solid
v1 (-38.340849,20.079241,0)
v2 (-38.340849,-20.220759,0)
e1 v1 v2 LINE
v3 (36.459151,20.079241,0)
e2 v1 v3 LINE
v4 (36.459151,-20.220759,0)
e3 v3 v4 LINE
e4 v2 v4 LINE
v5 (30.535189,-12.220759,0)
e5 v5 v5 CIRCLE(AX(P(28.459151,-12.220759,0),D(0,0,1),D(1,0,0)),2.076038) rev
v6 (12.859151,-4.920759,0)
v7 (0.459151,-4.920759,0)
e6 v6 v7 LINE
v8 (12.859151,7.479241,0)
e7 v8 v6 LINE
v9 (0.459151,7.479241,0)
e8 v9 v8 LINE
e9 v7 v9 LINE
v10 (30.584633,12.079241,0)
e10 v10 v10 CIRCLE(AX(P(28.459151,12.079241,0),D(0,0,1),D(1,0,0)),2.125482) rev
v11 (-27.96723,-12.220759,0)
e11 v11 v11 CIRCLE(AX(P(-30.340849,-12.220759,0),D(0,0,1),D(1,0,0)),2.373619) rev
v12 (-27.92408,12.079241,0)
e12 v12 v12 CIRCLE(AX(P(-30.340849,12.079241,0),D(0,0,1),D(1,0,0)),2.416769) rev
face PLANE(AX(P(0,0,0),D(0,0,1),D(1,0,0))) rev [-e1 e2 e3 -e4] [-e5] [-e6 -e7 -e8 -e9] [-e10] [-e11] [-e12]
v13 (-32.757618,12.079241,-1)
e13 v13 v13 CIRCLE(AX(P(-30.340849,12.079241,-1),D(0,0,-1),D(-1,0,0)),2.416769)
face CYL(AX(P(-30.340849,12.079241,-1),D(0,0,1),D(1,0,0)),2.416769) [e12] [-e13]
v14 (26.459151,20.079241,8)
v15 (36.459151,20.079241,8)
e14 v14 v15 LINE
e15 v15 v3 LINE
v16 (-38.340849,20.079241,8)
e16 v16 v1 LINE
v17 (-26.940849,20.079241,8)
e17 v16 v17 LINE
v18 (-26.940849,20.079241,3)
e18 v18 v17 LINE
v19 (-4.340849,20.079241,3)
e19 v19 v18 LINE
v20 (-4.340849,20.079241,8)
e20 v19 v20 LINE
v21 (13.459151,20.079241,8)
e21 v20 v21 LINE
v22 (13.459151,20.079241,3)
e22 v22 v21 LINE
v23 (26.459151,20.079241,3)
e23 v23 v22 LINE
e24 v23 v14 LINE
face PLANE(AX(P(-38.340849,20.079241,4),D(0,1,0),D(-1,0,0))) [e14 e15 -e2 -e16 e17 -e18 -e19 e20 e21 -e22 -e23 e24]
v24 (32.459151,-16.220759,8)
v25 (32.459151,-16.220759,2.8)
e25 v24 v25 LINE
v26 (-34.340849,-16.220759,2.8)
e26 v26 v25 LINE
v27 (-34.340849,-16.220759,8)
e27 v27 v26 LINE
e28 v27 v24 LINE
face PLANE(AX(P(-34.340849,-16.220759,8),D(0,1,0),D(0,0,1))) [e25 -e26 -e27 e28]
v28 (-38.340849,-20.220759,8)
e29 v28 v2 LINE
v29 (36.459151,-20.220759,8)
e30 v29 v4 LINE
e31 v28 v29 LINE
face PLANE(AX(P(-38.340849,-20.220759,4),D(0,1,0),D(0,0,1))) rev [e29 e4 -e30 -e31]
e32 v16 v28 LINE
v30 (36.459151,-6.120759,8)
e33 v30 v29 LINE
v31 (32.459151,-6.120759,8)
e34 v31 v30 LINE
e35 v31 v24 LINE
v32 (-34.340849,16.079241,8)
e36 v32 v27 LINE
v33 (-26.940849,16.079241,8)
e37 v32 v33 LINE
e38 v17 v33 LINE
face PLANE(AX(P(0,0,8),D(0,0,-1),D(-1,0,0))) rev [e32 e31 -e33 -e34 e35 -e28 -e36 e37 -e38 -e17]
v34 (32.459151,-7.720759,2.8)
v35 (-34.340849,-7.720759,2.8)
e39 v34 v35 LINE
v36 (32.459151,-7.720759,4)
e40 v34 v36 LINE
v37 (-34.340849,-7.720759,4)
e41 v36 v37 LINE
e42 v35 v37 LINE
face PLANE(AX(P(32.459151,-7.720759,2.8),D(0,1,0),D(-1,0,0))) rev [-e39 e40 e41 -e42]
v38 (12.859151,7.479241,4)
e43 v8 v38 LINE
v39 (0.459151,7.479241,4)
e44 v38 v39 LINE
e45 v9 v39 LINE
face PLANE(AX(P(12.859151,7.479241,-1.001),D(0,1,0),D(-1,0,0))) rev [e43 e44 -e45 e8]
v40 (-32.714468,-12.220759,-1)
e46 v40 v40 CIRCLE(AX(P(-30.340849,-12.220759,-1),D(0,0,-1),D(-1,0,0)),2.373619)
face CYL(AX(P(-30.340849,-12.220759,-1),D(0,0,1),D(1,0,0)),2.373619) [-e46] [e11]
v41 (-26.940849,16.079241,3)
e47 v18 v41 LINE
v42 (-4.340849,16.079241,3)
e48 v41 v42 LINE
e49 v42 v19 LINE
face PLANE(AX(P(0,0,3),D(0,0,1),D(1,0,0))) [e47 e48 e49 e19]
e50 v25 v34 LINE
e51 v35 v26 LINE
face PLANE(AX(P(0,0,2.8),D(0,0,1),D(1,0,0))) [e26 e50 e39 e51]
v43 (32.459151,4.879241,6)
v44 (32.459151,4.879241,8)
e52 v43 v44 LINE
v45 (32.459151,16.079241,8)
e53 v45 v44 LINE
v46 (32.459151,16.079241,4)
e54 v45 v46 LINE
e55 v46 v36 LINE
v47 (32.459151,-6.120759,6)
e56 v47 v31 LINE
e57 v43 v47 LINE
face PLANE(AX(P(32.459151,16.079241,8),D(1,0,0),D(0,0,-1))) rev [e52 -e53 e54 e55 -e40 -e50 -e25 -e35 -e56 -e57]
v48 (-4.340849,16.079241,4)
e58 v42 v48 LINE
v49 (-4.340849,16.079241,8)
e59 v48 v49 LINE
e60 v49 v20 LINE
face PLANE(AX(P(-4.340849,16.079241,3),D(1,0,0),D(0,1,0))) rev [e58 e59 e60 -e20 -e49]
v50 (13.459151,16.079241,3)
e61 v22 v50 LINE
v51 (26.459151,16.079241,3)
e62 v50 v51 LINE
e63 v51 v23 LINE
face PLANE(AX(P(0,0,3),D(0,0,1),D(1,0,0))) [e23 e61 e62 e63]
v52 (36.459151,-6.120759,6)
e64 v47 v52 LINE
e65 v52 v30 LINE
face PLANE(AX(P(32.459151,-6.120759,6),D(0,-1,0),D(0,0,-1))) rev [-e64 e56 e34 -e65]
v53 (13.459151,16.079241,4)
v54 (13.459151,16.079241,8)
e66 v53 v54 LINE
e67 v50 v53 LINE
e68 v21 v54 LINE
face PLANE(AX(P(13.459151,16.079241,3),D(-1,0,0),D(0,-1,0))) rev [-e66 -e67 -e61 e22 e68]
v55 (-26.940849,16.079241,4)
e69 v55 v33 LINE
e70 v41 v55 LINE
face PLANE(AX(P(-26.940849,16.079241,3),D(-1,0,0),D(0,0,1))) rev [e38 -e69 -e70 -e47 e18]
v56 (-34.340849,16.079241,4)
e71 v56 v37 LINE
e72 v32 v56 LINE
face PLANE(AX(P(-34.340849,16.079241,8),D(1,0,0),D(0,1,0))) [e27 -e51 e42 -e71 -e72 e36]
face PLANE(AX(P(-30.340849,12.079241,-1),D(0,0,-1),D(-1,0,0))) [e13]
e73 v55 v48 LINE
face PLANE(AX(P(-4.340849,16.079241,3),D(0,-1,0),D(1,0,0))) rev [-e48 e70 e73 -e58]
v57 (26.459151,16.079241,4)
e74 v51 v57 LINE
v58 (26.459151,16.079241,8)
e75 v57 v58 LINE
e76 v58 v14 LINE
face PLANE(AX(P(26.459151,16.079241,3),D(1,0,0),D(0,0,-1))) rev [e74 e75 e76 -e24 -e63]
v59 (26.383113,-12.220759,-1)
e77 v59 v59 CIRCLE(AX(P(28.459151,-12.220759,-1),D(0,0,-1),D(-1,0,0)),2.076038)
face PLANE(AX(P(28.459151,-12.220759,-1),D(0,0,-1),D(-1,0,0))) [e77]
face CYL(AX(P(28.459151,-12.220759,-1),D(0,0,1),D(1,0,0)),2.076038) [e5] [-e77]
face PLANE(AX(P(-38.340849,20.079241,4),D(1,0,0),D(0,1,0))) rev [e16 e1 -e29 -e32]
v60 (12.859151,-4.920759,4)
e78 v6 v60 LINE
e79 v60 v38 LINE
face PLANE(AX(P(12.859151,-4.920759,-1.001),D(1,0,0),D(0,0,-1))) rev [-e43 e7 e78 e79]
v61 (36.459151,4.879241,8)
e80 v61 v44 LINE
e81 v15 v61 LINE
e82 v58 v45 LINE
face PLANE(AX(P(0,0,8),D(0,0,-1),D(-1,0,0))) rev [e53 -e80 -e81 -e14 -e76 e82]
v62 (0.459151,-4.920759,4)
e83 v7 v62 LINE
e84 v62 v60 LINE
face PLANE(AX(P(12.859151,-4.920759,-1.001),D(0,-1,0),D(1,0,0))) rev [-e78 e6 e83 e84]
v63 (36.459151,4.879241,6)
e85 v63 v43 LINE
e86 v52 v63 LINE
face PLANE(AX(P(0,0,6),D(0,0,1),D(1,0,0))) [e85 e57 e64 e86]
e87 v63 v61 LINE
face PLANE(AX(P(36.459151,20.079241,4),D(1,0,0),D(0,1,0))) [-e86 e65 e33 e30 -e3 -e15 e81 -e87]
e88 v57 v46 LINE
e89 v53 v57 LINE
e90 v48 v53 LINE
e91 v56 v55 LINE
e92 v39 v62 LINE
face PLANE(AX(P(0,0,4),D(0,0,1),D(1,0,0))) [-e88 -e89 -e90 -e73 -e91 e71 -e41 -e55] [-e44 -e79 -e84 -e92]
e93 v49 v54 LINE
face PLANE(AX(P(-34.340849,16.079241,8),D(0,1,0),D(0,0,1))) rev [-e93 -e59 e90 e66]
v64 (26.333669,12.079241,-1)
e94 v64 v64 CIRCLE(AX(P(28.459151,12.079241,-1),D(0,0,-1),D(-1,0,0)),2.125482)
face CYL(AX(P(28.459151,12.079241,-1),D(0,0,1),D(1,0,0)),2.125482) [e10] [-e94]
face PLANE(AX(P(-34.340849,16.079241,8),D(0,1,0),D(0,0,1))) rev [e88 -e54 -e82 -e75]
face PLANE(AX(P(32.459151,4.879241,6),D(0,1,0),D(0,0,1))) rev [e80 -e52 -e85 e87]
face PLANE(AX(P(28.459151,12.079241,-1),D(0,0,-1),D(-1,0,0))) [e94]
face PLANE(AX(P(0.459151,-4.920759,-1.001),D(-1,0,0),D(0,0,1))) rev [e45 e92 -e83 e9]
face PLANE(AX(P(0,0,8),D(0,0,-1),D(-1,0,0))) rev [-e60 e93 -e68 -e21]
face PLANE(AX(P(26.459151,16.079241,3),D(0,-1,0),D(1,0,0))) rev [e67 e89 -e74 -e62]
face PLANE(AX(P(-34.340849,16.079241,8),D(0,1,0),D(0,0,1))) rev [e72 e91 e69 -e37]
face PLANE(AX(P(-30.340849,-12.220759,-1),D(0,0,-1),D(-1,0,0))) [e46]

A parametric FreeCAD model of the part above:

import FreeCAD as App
import Part
import Sketcher


def add_polygon(sketch, points):
    """Adds a closed chain of lines whose ends are joined by coincident constraints."""
    first, n = sketch.GeometryCount, len(points)
    for a, b in zip(points, points[1:] + points[:1]):
        sketch.addGeometry(Part.LineSegment(App.Vector(*a, 0), App.Vector(*b, 0)), False)
    for i in range(n):
        sketch.addConstraint(Sketcher.Constraint("Coincident", first + i, 2, first + (i + 1) % n, 1))

doc = App.newDocument("Part")
body = doc.addObject("PartDesign::Body", "Body")

# Sketch on XY plane
sketch1 = body.newObject("Sketcher::SketchObject", "Sketch")
sketch1.AttachmentSupport = (doc.getObject("XY_Plane"), [""])
sketch1.MapMode = "FlatFace"
add_polygon(sketch1, [(-38.340849, 20.079241), (-38.340849, -20.220759), (36.459151, -20.220759), (36.459151, 20.079241)])  # lines 0-3
sketch1.addConstraint(Sketcher.Constraint("Vertical", 0))
sketch1.addConstraint(Sketcher.Constraint("Horizontal", 1))
sketch1.addConstraint(Sketcher.Constraint("Vertical", 2))
sketch1.addConstraint(Sketcher.Constraint("Horizontal", 3))
sketch1.addConstraint(Sketcher.Constraint("DistanceX", 1, 1, 1, 2, 74.8))
sketch1.addConstraint(Sketcher.Constraint("DistanceY", 0, 2, 0, 1, 40.3))
sketch1.addConstraint(Sketcher.Constraint("DistanceX", 0, 2, -1, 1, 38.340849))
sketch1.addConstraint(Sketcher.Constraint("DistanceY", 0, 2, -1, 1, 20.220759))
pad1 = body.newObject("PartDesign::Pad", "Pad")
pad1.Profile = sketch1
pad1.Length = 4

# Sketch on XY plane
sketch2 = body.newObject("Sketcher::SketchObject", "Sketch001")
sketch2.AttachmentSupport = (doc.getObject("XY_Plane"), [""])
sketch2.MapMode = "FlatFace"
sketch2.AttachmentOffset = App.Placement(App.Vector(0, 0, 4), App.Rotation())
add_polygon(sketch2, [(-38.340849, 20.079241), (-38.340849, -20.220759), (36.459151, -20.220759), (36.459151, 20.079241)])  # lines 0-3
add_polygon(sketch2, [(32.459151, -16.220759), (-34.340849, -16.220759), (-34.340849, 16.079241), (32.459151, 16.079241)])  # lines 4-7
sketch2.addConstraint(Sketcher.Constraint("Vertical", 0))
sketch2.addConstraint(Sketcher.Constraint("Horizontal", 1))
sketch2.addConstraint(Sketcher.Constraint("Vertical", 2))
sketch2.addConstraint(Sketcher.Constraint("Horizontal", 3))
sketch2.addConstraint(Sketcher.Constraint("Horizontal", 4))
sketch2.addConstraint(Sketcher.Constraint("Vertical", 5))
sketch2.addConstraint(Sketcher.Constraint("Horizontal", 6))
sketch2.addConstraint(Sketcher.Constraint("Vertical", 7))
sketch2.addConstraint(Sketcher.Constraint("DistanceX", 1, 1, 1, 2, 74.8))
sketch2.addConstraint(Sketcher.Constraint("DistanceX", 4, 2, 4, 1, 66.8))
sketch2.addConstraint(Sketcher.Constraint("DistanceY", 0, 2, 0, 1, 40.3))
sketch2.addConstraint(Sketcher.Constraint("DistanceY", 5, 1, 5, 2, 32.3))
sketch2.addConstraint(Sketcher.Constraint("DistanceX", 0, 2, 4, 2, 4.0))
sketch2.addConstraint(Sketcher.Constraint("DistanceY", 0, 2, 4, 2, 4.0))
sketch2.addConstraint(Sketcher.Constraint("DistanceX", 0, 2, -1, 1, 38.340849))
sketch2.addConstraint(Sketcher.Constraint("DistanceY", 0, 2, -1, 1, 20.220759))
pad2 = body.newObject("PartDesign::Pad", "Pad001")
pad2.Profile = sketch2
pad2.Length = 4

# Sketch on XY plane
sketch3 = body.newObject("Sketcher::SketchObject", "Sketch002")
sketch3.AttachmentSupport = (doc.getObject("XY_Plane"), [""])
sketch3.MapMode = "FlatFace"
sketch3.addGeometry(Part.Circle(App.Vector(28.459151, 12.079241, 0), App.Vector(0, 0, 1), 2.125482), False)
sketch3.addGeometry(Part.Circle(App.Vector(-30.340849, 12.079241, 0), App.Vector(0, 0, 1), 2.416769), False)
sketch3.addGeometry(Part.Circle(App.Vector(28.459151, -12.220759, 0), App.Vector(0, 0, 1), 2.076038), False)
sketch3.addGeometry(Part.Circle(App.Vector(-30.340849, -12.220759, 0), App.Vector(0, 0, 1), 2.373619), False)
sketch3.addConstraint(Sketcher.Constraint("Horizontal", 0, 3, 1, 3))
sketch3.addConstraint(Sketcher.Constraint("Horizontal", 2, 3, 3, 3))
sketch3.addConstraint(Sketcher.Constraint("Vertical", 0, 3, 2, 3))
sketch3.addConstraint(Sketcher.Constraint("Vertical", 1, 3, 3, 3))
sketch3.addConstraint(Sketcher.Constraint("DistanceX", 1, 3, 0, 3, 58.8))
sketch3.addConstraint(Sketcher.Constraint("DistanceY", 2, 3, 0, 3, 24.3))
sketch3.addConstraint(Sketcher.Constraint("Diameter", 1, 4.833539))
sketch3.addConstraint(Sketcher.Constraint("Diameter", 3, 4.747238))
sketch3.addConstraint(Sketcher.Constraint("Diameter", 0, 4.250964))
sketch3.addConstraint(Sketcher.Constraint("Diameter", 2, 4.152076))
sketch3.addConstraint(Sketcher.Constraint("DistanceX", -1, 1, 0, 3, 28.459151))
sketch3.addConstraint(Sketcher.Constraint("DistanceY", -1, 1, 0, 3, 12.079241))
pad3 = body.newObject("PartDesign::Pad", "Pad002")
pad3.Profile = sketch3
pad3.Length = 1
pad3.Reversed = True

# Sketch on XY plane
sketch4 = body.newObject("Sketcher::SketchObject", "Sketch003")
sketch4.AttachmentSupport = (doc.getObject("XY_Plane"), [""])
sketch4.MapMode = "FlatFace"
sketch4.AttachmentOffset = App.Placement(App.Vector(0, 0, 8), App.Rotation())
add_polygon(sketch4, [(32.459151, 4.879241), (32.459151, -6.120759), (36.459151, -6.120759), (36.459151, 4.879241)])  # lines 0-3
sketch4.addConstraint(Sketcher.Constraint("Vertical", 0))
sketch4.addConstraint(Sketcher.Constraint("Horizontal", 1))
sketch4.addConstraint(Sketcher.Constraint("Vertical", 2))
sketch4.addConstraint(Sketcher.Constraint("Horizontal", 3))
sketch4.addConstraint(Sketcher.Constraint("DistanceX", 1, 1, 1, 2, 4.0))
sketch4.addConstraint(Sketcher.Constraint("DistanceY", 0, 2, 0, 1, 11.0))
sketch4.addConstraint(Sketcher.Constraint("DistanceX", -1, 1, 0, 2, 32.459151))
sketch4.addConstraint(Sketcher.Constraint("DistanceY", 0, 2, -1, 1, 6.120759))
pocket1 = body.newObject("PartDesign::Pocket", "Pocket")
pocket1.Profile = sketch4
pocket1.Length = 2

# Sketch on XY plane
sketch5 = body.newObject("Sketcher::SketchObject", "Sketch004")
sketch5.AttachmentSupport = (doc.getObject("XY_Plane"), [""])
sketch5.MapMode = "FlatFace"
sketch5.AttachmentOffset = App.Placement(App.Vector(0, 0, 4), App.Rotation())
add_polygon(sketch5, [(-34.340849, -7.720759), (-34.340849, -16.220759), (32.459151, -16.220759), (32.459151, -7.720759)])  # lines 0-3
sketch5.addConstraint(Sketcher.Constraint("Vertical", 0))
sketch5.addConstraint(Sketcher.Constraint("Horizontal", 1))
sketch5.addConstraint(Sketcher.Constraint("Vertical", 2))
sketch5.addConstraint(Sketcher.Constraint("Horizontal", 3))
sketch5.addConstraint(Sketcher.Constraint("DistanceX", 1, 1, 1, 2, 66.8))
sketch5.addConstraint(Sketcher.Constraint("DistanceY", 0, 2, 0, 1, 8.5))
sketch5.addConstraint(Sketcher.Constraint("DistanceX", 0, 2, -1, 1, 34.340849))
sketch5.addConstraint(Sketcher.Constraint("DistanceY", 0, 2, -1, 1, 16.220759))
pocket2 = body.newObject("PartDesign::Pocket", "Pocket001")
pocket2.Profile = sketch5
pocket2.Length = 1.2

# Sketch on XY plane
sketch6 = body.newObject("Sketcher::SketchObject", "Sketch005")
sketch6.AttachmentSupport = (doc.getObject("XY_Plane"), [""])
sketch6.MapMode = "FlatFace"
sketch6.AttachmentOffset = App.Placement(App.Vector(0, 0, 8), App.Rotation())
add_polygon(sketch6, [(13.459151, 20.079241), (13.459151, 16.079241), (26.459151, 16.079241), (26.459151, 20.079241)])  # lines 0-3
add_polygon(sketch6, [(-26.940849, 20.079241), (-26.940849, 16.079241), (-4.340849, 16.079241), (-4.340849, 20.079241)])  # lines 4-7
sketch6.addConstraint(Sketcher.Constraint("Vertical", 0))
sketch6.addConstraint(Sketcher.Constraint("Horizontal", 1))
sketch6.addConstraint(Sketcher.Constraint("Vertical", 2))
sketch6.addConstraint(Sketcher.Constraint("Horizontal", 3))
sketch6.addConstraint(Sketcher.Constraint("Vertical", 4))
sketch6.addConstraint(Sketcher.Constraint("Horizontal", 5))
sketch6.addConstraint(Sketcher.Constraint("Vertical", 6))
sketch6.addConstraint(Sketcher.Constraint("Horizontal", 7))
sketch6.addConstraint(Sketcher.Constraint("Horizontal", 1, 2, 4, 2))
sketch6.addConstraint(Sketcher.Constraint("Horizontal", 3, 2, 6, 2))
sketch6.addConstraint(Sketcher.Constraint("DistanceX", 1, 1, 1, 2, 13.0))
sketch6.addConstraint(Sketcher.Constraint("DistanceY", 0, 2, 0, 1, 4.0))
sketch6.addConstraint(Sketcher.Constraint("DistanceX", 5, 1, 5, 2, 22.6))
sketch6.addConstraint(Sketcher.Constraint("DistanceX", 4, 2, 0, 2, 40.4))
sketch6.addConstraint(Sketcher.Constraint("DistanceX", -1, 1, 0, 2, 13.459151))
sketch6.addConstraint(Sketcher.Constraint("DistanceY", -1, 1, 0, 2, 16.079241))
pocket3 = body.newObject("PartDesign::Pocket", "Pocket002")
pocket3.Profile = sketch6
pocket3.Length = 5

# Sketch on XY plane
sketch7 = body.newObject("Sketcher::SketchObject", "Sketch006")
sketch7.AttachmentSupport = (doc.getObject("XY_Plane"), [""])
sketch7.MapMode = "FlatFace"
sketch7.AttachmentOffset = App.Placement(App.Vector(0, 0, 4), App.Rotation())
add_polygon(sketch7, [(0.459151, 7.479241), (0.459151, -4.920759), (12.859151, -4.920759), (12.859151, 7.479241)])  # lines 0-3
sketch7.addConstraint(Sketcher.Constraint("Vertical", 0))
sketch7.addConstraint(Sketcher.Constraint("Horizontal", 1))
sketch7.addConstraint(Sketcher.Constraint("Vertical", 2))
sketch7.addConstraint(Sketcher.Constraint("Horizontal", 3))
sketch7.addConstraint(Sketcher.Constraint("Equal", 3, 0))
sketch7.addConstraint(Sketcher.Constraint("DistanceX", 1, 1, 1, 2, 12.4))
sketch7.addConstraint(Sketcher.Constraint("DistanceX", -1, 1, 0, 2, 0.459151))
sketch7.addConstraint(Sketcher.Constraint("DistanceY", 0, 2, -1, 1, 4.920759))
pocket4 = body.newObject("PartDesign::Pocket", "Pocket003")
pocket4.Profile = sketch7
pocket4.Type = "UpToFirst"

doc.recompute()
